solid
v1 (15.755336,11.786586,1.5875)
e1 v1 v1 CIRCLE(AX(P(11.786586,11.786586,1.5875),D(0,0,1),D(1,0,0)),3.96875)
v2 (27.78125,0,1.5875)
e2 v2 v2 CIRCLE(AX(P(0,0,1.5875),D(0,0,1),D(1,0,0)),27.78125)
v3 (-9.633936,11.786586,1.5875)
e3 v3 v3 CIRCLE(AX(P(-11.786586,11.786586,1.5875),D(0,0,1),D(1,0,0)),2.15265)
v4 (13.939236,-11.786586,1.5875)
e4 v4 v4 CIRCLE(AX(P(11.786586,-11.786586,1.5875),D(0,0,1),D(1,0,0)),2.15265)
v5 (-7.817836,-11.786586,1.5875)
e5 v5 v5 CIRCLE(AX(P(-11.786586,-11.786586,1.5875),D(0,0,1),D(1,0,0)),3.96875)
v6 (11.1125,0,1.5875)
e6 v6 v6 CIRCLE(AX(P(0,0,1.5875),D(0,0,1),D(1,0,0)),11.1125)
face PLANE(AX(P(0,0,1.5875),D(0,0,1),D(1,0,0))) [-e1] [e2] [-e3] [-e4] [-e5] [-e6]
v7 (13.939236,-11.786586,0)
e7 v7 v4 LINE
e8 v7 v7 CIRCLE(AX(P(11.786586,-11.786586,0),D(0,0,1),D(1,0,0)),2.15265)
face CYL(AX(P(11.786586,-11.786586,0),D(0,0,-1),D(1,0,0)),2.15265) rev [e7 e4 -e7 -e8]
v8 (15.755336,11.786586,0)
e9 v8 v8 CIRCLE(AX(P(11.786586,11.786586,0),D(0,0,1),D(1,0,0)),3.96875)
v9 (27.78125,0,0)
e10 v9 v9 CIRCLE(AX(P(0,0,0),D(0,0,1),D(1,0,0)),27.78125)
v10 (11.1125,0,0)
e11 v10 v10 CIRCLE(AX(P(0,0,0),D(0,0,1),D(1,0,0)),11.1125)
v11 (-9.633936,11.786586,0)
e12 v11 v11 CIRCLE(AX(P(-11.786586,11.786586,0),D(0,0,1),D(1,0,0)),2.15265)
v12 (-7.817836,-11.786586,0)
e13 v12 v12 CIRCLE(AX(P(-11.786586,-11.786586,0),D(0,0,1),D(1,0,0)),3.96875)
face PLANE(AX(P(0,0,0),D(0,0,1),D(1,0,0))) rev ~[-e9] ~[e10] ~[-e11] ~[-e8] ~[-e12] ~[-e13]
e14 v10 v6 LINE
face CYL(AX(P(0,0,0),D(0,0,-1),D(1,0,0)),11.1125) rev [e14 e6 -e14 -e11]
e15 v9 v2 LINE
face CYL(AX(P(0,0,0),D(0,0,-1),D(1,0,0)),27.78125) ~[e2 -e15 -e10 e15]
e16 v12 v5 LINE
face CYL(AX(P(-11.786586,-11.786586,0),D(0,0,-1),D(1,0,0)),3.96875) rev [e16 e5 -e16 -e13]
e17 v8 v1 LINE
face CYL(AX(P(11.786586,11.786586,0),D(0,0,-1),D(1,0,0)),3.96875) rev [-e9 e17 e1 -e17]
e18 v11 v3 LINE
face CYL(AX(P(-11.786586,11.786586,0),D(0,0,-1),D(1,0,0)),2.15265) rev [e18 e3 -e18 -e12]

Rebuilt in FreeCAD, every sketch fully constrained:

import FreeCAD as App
import Part
import Sketcher
Q = App.Units.Quantity

doc = App.newDocument("Part")
body = doc.addObject("PartDesign::Body", "Body")

# Sketch on XY plane
sketch1 = body.newObject("Sketcher::SketchObject", "Sketch")
sketch1.AttachmentSupport = (doc.getObject("XY_Plane"), [""])
sketch1.MapMode = "FlatFace"
sketch1.addGeometry(Part.Circle(App.Vector(0, 0, 0), App.Vector(0, 0, 1), 27.8), False)
sketch1.addGeometry(Part.Circle(App.Vector(-11.8, -11.8, 0), App.Vector(0, 0, 1), 4), False)
sketch1.addGeometry(Part.Circle(App.Vector(11.8, -11.8, 0), App.Vector(0, 0, 1), 2.2), False)
sketch1.addGeometry(Part.Circle(App.Vector(-11.8, 11.8, 0), App.Vector(0, 0, 1), 2.2), False)
sketch1.addGeometry(Part.Circle(App.Vector(0, 0, 0), App.Vector(0, 0, 1), 11.1), False)
sketch1.addGeometry(Part.Circle(App.Vector(11.8, 11.8, 0), App.Vector(0, 0, 1), 4), False)
sketch1.addConstraint(Sketcher.Constraint("Coincident", 0, 3, -1, 1))
sketch1.addConstraint(Sketcher.Constraint("Coincident", 4, 3, -1, 1))
sketch1.addConstraint(Sketcher.Constraint("Equal", 2, 3))
sketch1.addConstraint(Sketcher.Constraint("Equal", 1, 5))
sketch1.addConstraint(Sketcher.Constraint("Symmetric", 2, 3, 3, 3, -1, 1))
sketch1.addConstraint(Sketcher.Constraint("Symmetric", 1, 3, 5, 3, -1, 1))
sketch1.addConstraint(Sketcher.Constraint("Symmetric", 1, 3, 2, 3, -2))
sketch1.addConstraint(Sketcher.Constraint("Diameter", 0, Q("2.1875 in")))
sketch1.addConstraint(Sketcher.Constraint("Diameter", 1, Q("0.3125 in")))
sketch1.addConstraint(Sketcher.Constraint("Diameter", 4, Q("0.875 in")))
sketch1.addConstraint(Sketcher.Constraint("Diameter", 2, Q("0.1695 in")))
sketch1.addConstraint(Sketcher.Constraint("DistanceX", 1, 3, 2, 3, 23.573172))
sketch1.addConstraint(Sketcher.Constraint("DistanceY", 1, 3, 3, 3, 23.573172))
pad1 = body.newObject("PartDesign::Pad", "Pad")
pad1.Profile = sketch1
pad1.Length = Q("0.0625 in")

doc.recompute()
